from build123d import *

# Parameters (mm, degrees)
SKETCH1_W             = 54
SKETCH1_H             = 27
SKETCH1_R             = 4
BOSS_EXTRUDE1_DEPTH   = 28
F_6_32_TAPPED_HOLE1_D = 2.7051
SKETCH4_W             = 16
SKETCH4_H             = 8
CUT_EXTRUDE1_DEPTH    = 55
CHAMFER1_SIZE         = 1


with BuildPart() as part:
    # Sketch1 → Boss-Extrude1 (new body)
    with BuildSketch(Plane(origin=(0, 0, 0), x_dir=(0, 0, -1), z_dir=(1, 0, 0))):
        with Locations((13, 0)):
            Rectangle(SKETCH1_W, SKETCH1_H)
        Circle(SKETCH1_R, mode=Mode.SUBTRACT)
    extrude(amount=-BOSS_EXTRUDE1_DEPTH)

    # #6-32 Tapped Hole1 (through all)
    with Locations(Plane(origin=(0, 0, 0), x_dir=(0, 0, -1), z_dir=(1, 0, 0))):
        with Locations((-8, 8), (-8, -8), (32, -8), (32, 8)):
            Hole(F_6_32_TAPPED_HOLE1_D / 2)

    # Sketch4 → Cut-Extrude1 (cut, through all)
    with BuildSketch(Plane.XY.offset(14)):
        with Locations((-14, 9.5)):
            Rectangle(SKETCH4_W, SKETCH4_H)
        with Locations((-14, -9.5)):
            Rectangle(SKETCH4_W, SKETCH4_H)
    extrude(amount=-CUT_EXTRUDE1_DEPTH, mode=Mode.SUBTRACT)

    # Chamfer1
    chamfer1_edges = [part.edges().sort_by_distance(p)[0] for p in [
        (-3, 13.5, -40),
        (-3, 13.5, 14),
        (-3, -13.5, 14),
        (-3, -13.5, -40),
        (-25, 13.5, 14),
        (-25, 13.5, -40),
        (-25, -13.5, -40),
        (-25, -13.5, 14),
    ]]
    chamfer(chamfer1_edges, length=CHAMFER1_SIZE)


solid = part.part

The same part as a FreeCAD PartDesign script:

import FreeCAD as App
import Part
import Sketcher

V = App.Vector


def edges_at(feature, points):
    """Names of the edges that pass closest to the given points."""
    edges = feature.Shape.Edges
    near = lambda p: min(range(len(edges)), key=lambda i: edges[i].distToShape(Part.Vertex(*p))[0])
    return sorted({f"Edge{near(p) + 1}" for p in points})

doc = App.newDocument("Part")
body = doc.addObject("PartDesign::Body", "Body")

sketch1 = doc.addObject("Sketcher::SketchObject", "Sketch")
body.addObject(sketch1)
sketch1.AttachmentSupport = (doc.YZ_Plane, [""])
sketch1.MapMode = "FlatFace"
sketch1.addGeometry([
    Part.LineSegment(V(13.5, 14, 0), V(-13.5, 14, 0)),
    Part.LineSegment(V(-13.5, 14, 0), V(-13.5, -40, 0)),
    Part.LineSegment(V(-13.5, -40, 0), V(13.5, -40, 0)),
    Part.LineSegment(V(13.5, -40, 0), V(13.5, 14, 0)),
    Part.Circle(V(0, 0, 0), V(0, 0, 1), 4),
], False)
sketch1.addConstraint([
    Sketcher.Constraint("Coincident", 0, 2, 1, 1),
    Sketcher.Constraint("Coincident", 1, 2, 2, 1),
    Sketcher.Constraint("Coincident", 2, 2, 3, 1),
    Sketcher.Constraint("Coincident", 3, 2, 0, 1),
    Sketcher.Constraint("Horizontal", 0),
    Sketcher.Constraint("Vertical", 1),
    Sketcher.Constraint("Horizontal", 2),
    Sketcher.Constraint("Vertical", 3),
    Sketcher.Constraint("Coincident", 4, 3, -1, 1),
    Sketcher.Constraint("Diameter", 4, 8.0),
    Sketcher.Constraint("DistanceX", 0, 2, 0, 1, 27.0),
    Sketcher.Constraint("DistanceY", 1, 2, 1, 1, 54.0),
    Sketcher.Constraint("DistanceY", -1, 1, 0, 2, 14.0),
    Sketcher.Constraint("DistanceX", 0, 2, -1, 1, 13.5),
])
pad1 = doc.addObject("PartDesign::Pad", "Pad")
body.addObject(pad1)
pad1.Profile = sketch1
pad1.Length = 28
pad1.Reversed = True

sketch2 = doc.addObject("Sketcher::SketchObject", "Sketch001")
body.addObject(sketch2)
sketch2.AttachmentSupport = (doc.YZ_Plane, [""])
sketch2.MapMode = "FlatFace"
sketch2.addGeometry([
    Part.Circle(V(8, 8, 0), V(0, 0, 1), 1.35255),
    Part.Circle(V(-8, 8, 0), V(0, 0, 1), 1.35255),
    Part.Circle(V(-8, -32, 0), V(0, 0, 1), 1.35255),
    Part.Circle(V(8, -32, 0), V(0, 0, 1), 1.35255),
], False)
sketch2.addConstraint([
    Sketcher.Constraint("Equal", 0, 1),
    Sketcher.Constraint("Equal", 1, 2),
    Sketcher.Constraint("Equal", 2, 3),
    Sketcher.Constraint("Symmetric", 0, 3, 1, 3, -2),
    Sketcher.Constraint("Symmetric", 2, 3, 3, 3, -2),
    Sketcher.Constraint("Vertical", 1, 3, 2, 3),
    Sketcher.Constraint("DistanceX", -1, 1, 0, 3, 8.0),
    Sketcher.Constraint("DistanceY", -1, 1, 0, 3, 8.0),
    Sketcher.Constraint("DistanceY", 2, 3, -1, 1, 32.0),
    Sketcher.Constraint("Diameter", 0, 2.7051),
])
doc.recompute()
hole = doc.addObject("PartDesign::Hole", "Hole")
body.addObject(hole)
hole.Profile = sketch2
hole.ThreadType = "None"
hole.Diameter = 2.7051
hole.DepthType = "ThroughAll"

sketch3 = doc.addObject("Sketcher::SketchObject", "Sketch002")
body.addObject(sketch3)
sketch3.AttachmentSupport = (doc.XY_Plane, [""])
sketch3.MapMode = "FlatFace"
sketch3.AttachmentOffset = App.Placement(V(0, 0, 14), App.Rotation())
sketch3.addGeometry([
    Part.LineSegment(V(-22, 13.5, 0), V(-22, 5.5, 0)),
    Part.LineSegment(V(-22, 5.5, 0), V(-6, 5.5, 0)),
    Part.LineSegment(V(-6, 5.5, 0), V(-6, 13.5, 0)),
    Part.LineSegment(V(-6, 13.5, 0), V(-22, 13.5, 0)),
    Part.LineSegment(V(-22, -5.5, 0), V(-22, -13.5, 0)),
    Part.LineSegment(V(-22, -13.5, 0), V(-6, -13.5, 0)),
    Part.LineSegment(V(-6, -13.5, 0), V(-6, -5.5, 0)),
    Part.LineSegment(V(-6, -5.5, 0), V(-22, -5.5, 0)),
], False)
sketch3.addConstraint([
    Sketcher.Constraint("Coincident", 0, 2, 1, 1),
    Sketcher.Constraint("Coincident", 1, 2, 2, 1),
    Sketcher.Constraint("Coincident", 2, 2, 3, 1),
    Sketcher.Constraint("Coincident", 3, 2, 0, 1),
    Sketcher.Constraint("Coincident", 4, 2, 5, 1),
    Sketcher.Constraint("Coincident", 5, 2, 6, 1),
    Sketcher.Constraint("Coincident", 6, 2, 7, 1),
    Sketcher.Constraint("Coincident", 7, 2, 4, 1),
    Sketcher.Constraint("Vertical", 0),
    Sketcher.Constraint("Horizontal", 1),
    Sketcher.Constraint("Vertical", 2),
    Sketcher.Constraint("Horizontal", 3),
    Sketcher.Constraint("Vertical", 4),
    Sketcher.Constraint("Horizontal", 5),
    Sketcher.Constraint("Vertical", 6),
    Sketcher.Constraint("Horizontal", 7),
    Sketcher.Constraint("Symmetric", 3, 2, 4, 2, -1),
    Sketcher.Constraint("Symmetric", 1, 2, 6, 2, -1),
    Sketcher.Constraint("DistanceX", 1, 1, 1, 2, 16.0),
    Sketcher.Constraint("DistanceY", 0, 2, 0, 1, 8.0),
    Sketcher.Constraint("DistanceX", 0, 2, -1, 1, 22.0),
    Sketcher.Constraint("DistanceY", 4, 2, 0, 2, 19.0),
])
pocket1 = doc.addObject("PartDesign::Pocket", "Pocket")
body.addObject(pocket1)
pocket1.Profile = sketch3
pocket1.Type = "ThroughAll"
doc.recompute()

chamfer = doc.addObject("PartDesign::Chamfer", "Chamfer")
body.addObject(chamfer)
chamfer.Base = (pocket1, edges_at(pocket1, [
    (-3, 13.5, -40),
    (-3, 13.5, 14),
    (-3, -13.5, 14),
    (-3, -13.5, -40),
    (-25, 13.5, 14),
    (-25, 13.5, -40),
    (-25, -13.5, -40),
    (-25, -13.5, 14),
]))
chamfer.Size = 1

doc.recompute()
